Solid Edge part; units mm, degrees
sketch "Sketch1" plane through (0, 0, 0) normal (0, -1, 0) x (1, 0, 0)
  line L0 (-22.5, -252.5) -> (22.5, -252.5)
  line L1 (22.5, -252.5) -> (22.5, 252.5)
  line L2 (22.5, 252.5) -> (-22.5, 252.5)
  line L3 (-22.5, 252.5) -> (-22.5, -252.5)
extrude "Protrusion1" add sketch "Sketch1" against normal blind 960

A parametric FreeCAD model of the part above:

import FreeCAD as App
import Part
import Sketcher
from FreeCAD import Vector
Q = App.Units.Quantity

doc = App.newDocument("Part")
params = doc.addObject("Spreadsheet::Sheet", "Params")
for row, (alias, value) in enumerate([
    ("sketch1_width", "45 mm"),
    ("sketch1_height", "505 mm"),
    ("pad1_length", "960 mm"),
], start=1):
    params.set(f"A{row}", alias)
    params.set(f"B{row}", "=" + value)
    params.setAlias(f"B{row}", alias)

body = doc.addObject("PartDesign::Body", "Body")

sketch1 = doc.addObject("Sketcher::SketchObject", "Sketch")
body.addObject(sketch1)
sketch1.AttachmentSupport = (doc.XZ_Plane, [""])
sketch1.MapMode = "FlatFace"
sketch1.addGeometry([
    Part.LineSegment(Vector(-22, 252, 0), Vector(-22, -252, 0)),
    Part.LineSegment(Vector(-22, -252, 0), Vector(22, -252, 0)),
    Part.LineSegment(Vector(22, -252, 0), Vector(22, 252, 0)),
    Part.LineSegment(Vector(22, 252, 0), Vector(-22, 252, 0)),
], False)
sketch1.addConstraint([
    Sketcher.Constraint("Coincident", 0, 2, 1, 1),
    Sketcher.Constraint("Coincident", 1, 2, 2, 1),
    Sketcher.Constraint("Coincident", 2, 2, 3, 1),
    Sketcher.Constraint("Coincident", 3, 2, 0, 1),
    Sketcher.Constraint("Vertical", 0),
    Sketcher.Constraint("Horizontal", 1),
    Sketcher.Constraint("Vertical", 2),
    Sketcher.Constraint("Horizontal", 3),
    Sketcher.Constraint("Symmetric", 0, 2, 2, 2, -1, 1),
    Sketcher.Constraint("DistanceX", 1, 1, 1, 2, Q("45 mm")),
    Sketcher.Constraint("DistanceY", 0, 2, 0, 1, Q("505 mm")),
])
sketch1.setExpression("Constraints[9]", "Params.sketch1_width")
sketch1.setExpression("Constraints[10]", "Params.sketch1_height")
pad1 = doc.addObject("PartDesign::Pad", "Pad")
body.addObject(pad1)
pad1.Profile = sketch1
pad1.setExpression("Length", "Params.pad1_length")
pad1.Reversed = True

doc.recompute()
